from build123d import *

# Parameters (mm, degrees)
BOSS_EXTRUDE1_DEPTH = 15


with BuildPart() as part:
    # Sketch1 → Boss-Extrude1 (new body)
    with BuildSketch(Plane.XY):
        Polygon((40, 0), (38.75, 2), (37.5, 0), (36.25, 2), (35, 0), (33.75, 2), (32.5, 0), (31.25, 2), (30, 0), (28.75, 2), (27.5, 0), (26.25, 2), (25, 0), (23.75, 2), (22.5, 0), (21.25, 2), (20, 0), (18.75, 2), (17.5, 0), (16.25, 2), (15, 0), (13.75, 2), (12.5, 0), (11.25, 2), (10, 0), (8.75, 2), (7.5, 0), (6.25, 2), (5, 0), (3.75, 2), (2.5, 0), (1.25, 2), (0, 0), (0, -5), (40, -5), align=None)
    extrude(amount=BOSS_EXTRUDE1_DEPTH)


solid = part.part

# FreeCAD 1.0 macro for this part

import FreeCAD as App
import Part
import Sketcher
from FreeCAD import Vector

doc = App.newDocument("Part")
body = doc.addObject("PartDesign::Body", "Body")

# Sketch on XY plane
sketch1 = body.newObject("Sketcher::SketchObject", "Sketch")
sketch1.AttachmentSupport = (doc.getObject("XY_Plane"), [""])
sketch1.MapMode = "FlatFace"
sketch1.addGeometry(Part.LineSegment(Vector(40, 0, 0), Vector(38.8, 2, 0)), False)
sketch1.addGeometry(Part.LineSegment(Vector(38.8, 2, 0), Vector(37.5, 0, 0)), False)
sketch1.addGeometry(Part.LineSegment(Vector(37.5, 0, 0), Vector(36.2, 2, 0)), False)
sketch1.addGeometry(Part.LineSegment(Vector(36.2, 2, 0), Vector(35, 0, 0)), False)
sketch1.addGeometry(Part.LineSegment(Vector(35, 0, 0), Vector(33.8, 2, 0)), False)
sketch1.addGeometry(Part.LineSegment(Vector(33.8, 2, 0), Vector(32.5, 0, 0)), False)
sketch1.addGeometry(Part.LineSegment(Vector(32.5, 0, 0), Vector(31.2, 2, 0)), False)
sketch1.addGeometry(Part.LineSegment(Vector(31.2, 2, 0), Vector(30, 0, 0)), False)
sketch1.addGeometry(Part.LineSegment(Vector(30, 0, 0), Vector(28.8, 2, 0)), False)
sketch1.addGeometry(Part.LineSegment(Vector(28.8, 2, 0), Vector(27.5, 0, 0)), False)
sketch1.addGeometry(Part.LineSegment(Vector(27.5, 0, 0), Vector(26.2, 2, 0)), False)
sketch1.addGeometry(Part.LineSegment(Vector(26.2, 2, 0), Vector(25, 0, 0)), False)
sketch1.addGeometry(Part.LineSegment(Vector(25, 0, 0), Vector(23.8, 2, 0)), False)
sketch1.addGeometry(Part.LineSegment(Vector(23.8, 2, 0), Vector(22.5, 0, 0)), False)
sketch1.addGeometry(Part.LineSegment(Vector(22.5, 0, 0), Vector(21.2, 2, 0)), False)
sketch1.addGeometry(Part.LineSegment(Vector(21.2, 2, 0), Vector(20, 0, 0)), False)
sketch1.addGeometry(Part.LineSegment(Vector(20, 0, 0), Vector(18.8, 2, 0)), False)
sketch1.addGeometry(Part.LineSegment(Vector(18.8, 2, 0), Vector(17.5, 0, 0)), False)
sketch1.addGeometry(Part.LineSegment(Vector(17.5, 0, 0), Vector(16.2, 2, 0)), False)
sketch1.addGeometry(Part.LineSegment(Vector(16.2, 2, 0), Vector(15, 0, 0)), False)
sketch1.addGeometry(Part.LineSegment(Vector(15, 0, 0), Vector(13.8, 2, 0)), False)
sketch1.addGeometry(Part.LineSegment(Vector(13.8, 2, 0), Vector(12.5, 0, 0)), False)
sketch1.addGeometry(Part.LineSegment(Vector(12.5, 0, 0), Vector(11.2, 2, 0)), False)
sketch1.addGeometry(Part.LineSegment(Vector(11.2, 2, 0), Vector(10, 0, 0)), False)
sketch1.addGeometry(Part.LineSegment(Vector(10, 0, 0), Vector(8.8, 2, 0)), False)
sketch1.addGeometry(Part.LineSegment(Vector(8.8, 2, 0), Vector(7.5, 0, 0)), False)
sketch1.addGeometry(Part.LineSegment(Vector(7.5, 0, 0), Vector(6.2, 2, 0)), False)
sketch1.addGeometry(Part.LineSegment(Vector(6.2, 2, 0), Vector(5, 0, 0)), False)
sketch1.addGeometry(Part.LineSegment(Vector(5, 0, 0), Vector(3.8, 2, 0)), False)
sketch1.addGeometry(Part.LineSegment(Vector(3.8, 2, 0), Vector(2.5, 0, 0)), False)
sketch1.addGeometry(Part.LineSegment(Vector(2.5, 0, 0), Vector(1.2, 2, 0)), False)
sketch1.addGeometry(Part.LineSegment(Vector(1.2, 2, 0), Vector(0, 0, 0)), False)
sketch1.addGeometry(Part.LineSegment(Vector(0, 0, 0), Vector(0, -5, 0)), False)
sketch1.addGeometry(Part.LineSegment(Vector(0, -5, 0), Vector(40, -5, 0)), False)
sketch1.addGeometry(Part.LineSegment(Vector(40, -5, 0), Vector(40, 0, 0)), False)
sketch1.addConstraint(Sketcher.Constraint("Coincident", 0, 2, 1, 1))
sketch1.addConstraint(Sketcher.Constraint("Coincident", 1, 2, 2, 1))
sketch1.addConstraint(Sketcher.Constraint("Coincident", 2, 2, 3, 1))
sketch1.addConstraint(Sketcher.Constraint("Coincident", 3, 2, 4, 1))
sketch1.addConstraint(Sketcher.Constraint("Coincident", 4, 2, 5, 1))
sketch1.addConstraint(Sketcher.Constraint("Coincident", 5, 2, 6, 1))
sketch1.addConstraint(Sketcher.Constraint("Coincident", 6, 2, 7, 1))
sketch1.addConstraint(Sketcher.Constraint("Coincident", 7, 2, 8, 1))
sketch1.addConstraint(Sketcher.Constraint("Coincident", 8, 2, 9, 1))
sketch1.addConstraint(Sketcher.Constraint("Coincident", 9, 2, 10, 1))
sketch1.addConstraint(Sketcher.Constraint("Coincident", 10, 2, 11, 1))
sketch1.addConstraint(Sketcher.Constraint("Coincident", 11, 2, 12, 1))
sketch1.addConstraint(Sketcher.Constraint("Coincident", 12, 2, 13, 1))
sketch1.addConstraint(Sketcher.Constraint("Coincident", 13, 2, 14, 1))
sketch1.addConstraint(Sketcher.Constraint("Coincident", 14, 2, 15, 1))
sketch1.addConstraint(Sketcher.Constraint("Coincident", 15, 2, 16, 1))
sketch1.addConstraint(Sketcher.Constraint("Coincident", 16, 2, 17, 1))
sketch1.addConstraint(Sketcher.Constraint("Coincident", 17, 2, 18, 1))
sketch1.addConstraint(Sketcher.Constraint("Coincident", 18, 2, 19, 1))
sketch1.addConstraint(Sketcher.Constraint("Coincident", 19, 2, 20, 1))
sketch1.addConstraint(Sketcher.Constraint("Coincident", 20, 2, 21, 1))
sketch1.addConstraint(Sketcher.Constraint("Coincident", 21, 2, 22, 1))
sketch1.addConstraint(Sketcher.Constraint("Coincident", 22, 2, 23, 1))
sketch1.addConstraint(Sketcher.Constraint("Coincident", 23, 2, 24, 1))
sketch1.addConstraint(Sketcher.Constraint("Coincident", 24, 2, 25, 1))
sketch1.addConstraint(Sketcher.Constraint("Coincident", 25, 2, 26, 1))
sketch1.addConstraint(Sketcher.Constraint("Coincident", 26, 2, 27, 1))
sketch1.addConstraint(Sketcher.Constraint("Coincident", 27, 2, 28, 1))
sketch1.addConstraint(Sketcher.Constraint("Coincident", 28, 2, 29, 1))
sketch1.addConstraint(Sketcher.Constraint("Coincident", 29, 2, 30, 1))
sketch1.addConstraint(Sketcher.Constraint("Coincident", 30, 2, 31, 1))
sketch1.addConstraint(Sketcher.Constraint("Coincident", 31, 2, 32, 1))
sketch1.addConstraint(Sketcher.Constraint("Coincident", 32, 2, 33, 1))
sketch1.addConstraint(Sketcher.Constraint("Coincident", 33, 2, 34, 1))
sketch1.addConstraint(Sketcher.Constraint("Coincident", 34, 2, 0, 1))
sketch1.addConstraint(Sketcher.Constraint("Vertical", 32))
sketch1.addConstraint(Sketcher.Constraint("Horizontal", 33))
sketch1.addConstraint(Sketcher.Constraint("Vertical", 34))
sketch1.addConstraint(Sketcher.Constraint("Coincident", 31, 2, -1, 1))
sketch1.addConstraint(Sketcher.Constraint("PointOnObject", 1, 2, -1))
sketch1.addConstraint(Sketcher.Constraint("PointOnObject", 3, 2, -1))
sketch1.addConstraint(Sketcher.Constraint("PointOnObject", 5, 2, -1))
sketch1.addConstraint(Sketcher.Constraint("PointOnObject", 7, 2, -1))
sketch1.addConstraint(Sketcher.Constraint("PointOnObject", 9, 2, -1))
sketch1.addConstraint(Sketcher.Constraint("PointOnObject", 11, 2, -1))
sketch1.addConstraint(Sketcher.Constraint("PointOnObject", 13, 2, -1))
sketch1.addConstraint(Sketcher.Constraint("PointOnObject", 15, 2, -1))
sketch1.addConstraint(Sketcher.Constraint("PointOnObject", 17, 2, -1))
sketch1.addConstraint(Sketcher.Constraint("PointOnObject", 19, 2, -1))
sketch1.addConstraint(Sketcher.Constraint("PointOnObject", 21, 2, -1))
sketch1.addConstraint(Sketcher.Constraint("PointOnObject", 23, 2, -1))
sketch1.addConstraint(Sketcher.Constraint("PointOnObject", 25, 2, -1))
sketch1.addConstraint(Sketcher.Constraint("PointOnObject", 27, 2, -1))
sketch1.addConstraint(Sketcher.Constraint("PointOnObject", 29, 2, -1))
sketch1.addConstraint(Sketcher.Constraint("PointOnObject", 34, 2, -1))
sketch1.addConstraint(Sketcher.Constraint("Parallel", 0, 2))
sketch1.addConstraint(Sketcher.Constraint("Parallel", 1, 3))
sketch1.addConstraint(Sketcher.Constraint("Parallel", 2, 4))
sketch1.addConstraint(Sketcher.Constraint("Parallel", 3, 5))
sketch1.addConstraint(Sketcher.Constraint("Parallel", 4, 6))
sketch1.addConstraint(Sketcher.Constraint("Parallel", 5, 7))
sketch1.addConstraint(Sketcher.Constraint("Parallel", 6, 8))
sketch1.addConstraint(Sketcher.Constraint("Parallel", 7, 9))
sketch1.addConstraint(Sketcher.Constraint("Parallel", 8, 10))
sketch1.addConstraint(Sketcher.Constraint("Parallel", 9, 11))
sketch1.addConstraint(Sketcher.Constraint("Parallel", 10, 12))
sketch1.addConstraint(Sketcher.Constraint("Parallel", 11, 13))
sketch1.addConstraint(Sketcher.Constraint("Parallel", 12, 14))
sketch1.addConstraint(Sketcher.Constraint("Parallel", 13, 15))
sketch1.addConstraint(Sketcher.Constraint("Parallel", 14, 16))
sketch1.addConstraint(Sketcher.Constraint("Parallel", 15, 17))
sketch1.addConstraint(Sketcher.Constraint("Parallel", 16, 18))
sketch1.addConstraint(Sketcher.Constraint("Parallel", 17, 19))
sketch1.addConstraint(Sketcher.Constraint("Parallel", 18, 20))
sketch1.addConstraint(Sketcher.Constraint("Parallel", 19, 21))
sketch1.addConstraint(Sketcher.Constraint("Parallel", 20, 22))
sketch1.addConstraint(Sketcher.Constraint("Parallel", 21, 23))
sketch1.addConstraint(Sketcher.Constraint("Parallel", 22, 24))
sketch1.addConstraint(Sketcher.Constraint("Parallel", 23, 25))
sketch1.addConstraint(Sketcher.Constraint("Parallel", 24, 26))
sketch1.addConstraint(Sketcher.Constraint("Parallel", 25, 27))
sketch1.addConstraint(Sketcher.Constraint("Parallel", 26, 28))
sketch1.addConstraint(Sketcher.Constraint("Parallel", 27, 29))
sketch1.addConstraint(Sketcher.Constraint("Parallel", 28, 30))
sketch1.addConstraint(Sketcher.Constraint("Parallel", 29, 31))
sketch1.addConstraint(Sketcher.Constraint("Horizontal", 0, 2, 2, 2))
sketch1.addConstraint(Sketcher.Constraint("Horizontal", 2, 2, 4, 2))
sketch1.addConstraint(Sketcher.Constraint("Horizontal", 4, 2, 6, 2))
sketch1.addConstraint(Sketcher.Constraint("Horizontal", 6, 2, 8, 2))
sketch1.addConstraint(Sketcher.Constraint("Horizontal", 8, 2, 10, 2))
sketch1.addConstraint(Sketcher.Constraint("Horizontal", 10, 2, 12, 2))
sketch1.addConstraint(Sketcher.Constraint("Horizontal", 12, 2, 14, 2))
sketch1.addConstraint(Sketcher.Constraint("Horizontal", 14, 2, 16, 2))
sketch1.addConstraint(Sketcher.Constraint("Horizontal", 16, 2, 18, 2))
sketch1.addConstraint(Sketcher.Constraint("Horizontal", 18, 2, 20, 2))
sketch1.addConstraint(Sketcher.Constraint("Horizontal", 20, 2, 22, 2))
sketch1.addConstraint(Sketcher.Constraint("Horizontal", 22, 2, 24, 2))
sketch1.addConstraint(Sketcher.Constraint("Horizontal", 24, 2, 26, 2))
sketch1.addConstraint(Sketcher.Constraint("Horizontal", 26, 2, 28, 2))
sketch1.addConstraint(Sketcher.Constraint("Horizontal", 28, 2, 30, 2))
sketch1.addConstraint(Sketcher.Constraint("Equal", 0, 1))
sketch1.addConstraint(Sketcher.Constraint("DistanceX", 33, 1, 33, 2, 40.0))
sketch1.addConstraint(Sketcher.Constraint("DistanceY", 32, 2, 32, 1, 5.0))
sketch1.addConstraint(Sketcher.Constraint("DistanceY", -1, 1, 0, 2, 2.0))
pad1 = body.newObject("PartDesign::Pad", "Pad")
pad1.Profile = sketch1
pad1.Length = 15

doc.recompute()
